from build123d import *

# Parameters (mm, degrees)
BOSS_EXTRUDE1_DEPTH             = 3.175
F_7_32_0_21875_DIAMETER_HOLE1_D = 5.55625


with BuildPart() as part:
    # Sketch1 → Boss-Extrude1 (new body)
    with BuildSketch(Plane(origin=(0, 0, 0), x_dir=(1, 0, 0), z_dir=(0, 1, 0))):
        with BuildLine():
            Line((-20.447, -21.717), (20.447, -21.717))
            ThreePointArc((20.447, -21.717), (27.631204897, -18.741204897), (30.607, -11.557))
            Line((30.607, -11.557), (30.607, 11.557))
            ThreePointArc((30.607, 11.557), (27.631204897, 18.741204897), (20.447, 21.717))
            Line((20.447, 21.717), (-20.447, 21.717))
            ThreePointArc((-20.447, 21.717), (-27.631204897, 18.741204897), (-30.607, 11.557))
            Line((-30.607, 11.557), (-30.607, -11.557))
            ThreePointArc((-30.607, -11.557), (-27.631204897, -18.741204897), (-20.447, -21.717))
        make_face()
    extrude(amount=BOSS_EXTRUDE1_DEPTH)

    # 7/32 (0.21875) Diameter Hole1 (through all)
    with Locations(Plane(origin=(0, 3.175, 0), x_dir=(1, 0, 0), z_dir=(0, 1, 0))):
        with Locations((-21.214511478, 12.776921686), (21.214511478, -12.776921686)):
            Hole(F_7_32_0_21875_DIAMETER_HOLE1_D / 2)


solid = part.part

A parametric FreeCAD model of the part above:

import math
import FreeCAD as App
import Part
import Sketcher
from FreeCAD import Vector
Q = App.Units.Quantity

doc = App.newDocument("Part")
params = doc.addObject("Spreadsheet::Sheet", "Params")
for row, (alias, value) in enumerate([
    ("sketch1_radius", "0.4 in"),
    ("sketch1_width", "1.61 in"),
    ("sketch1_height", "0.91 in"),
    ("pad1_length", "0.125 in"),
    ("sketch2_diameter", "0.21875 in"),
    ("hole_diameter", "0.21875 in"),
], start=1):
    params.set(f"A{row}", alias)
    params.set(f"B{row}", "=" + value)
    params.setAlias(f"B{row}", alias)

body = doc.addObject("PartDesign::Body", "Body")

# Sketch on XZ plane
sketch1 = body.newObject("Sketcher::SketchObject", "Sketch")
sketch1.AttachmentSupport = (doc.getObject("XZ_Plane"), [""])
sketch1.MapMode = "FlatFace"
sketch1.addGeometry([
    Part.LineSegment(Vector(-20, 22, 0), Vector(20, 22, 0)),  # 0
    Part.ArcOfCircle(Part.Circle(Vector(20, 12, 0), Vector(0, 0, 1), 10), math.radians(0), math.radians(90)),  # 1
    Part.LineSegment(Vector(31, 12, 0), Vector(31, -12, 0)),  # 2
    Part.ArcOfCircle(Part.Circle(Vector(20, -12, 0), Vector(0, 0, 1), 10), math.radians(-90), math.radians(0)),  # 3
    Part.LineSegment(Vector(20, -22, 0), Vector(-20, -22, 0)),  # 4
    Part.ArcOfCircle(Part.Circle(Vector(-20, -12, 0), Vector(0, 0, 1), 10), math.radians(180), math.radians(270)),  # 5
    Part.LineSegment(Vector(-31, -12, 0), Vector(-31, 12, 0)),  # 6
    Part.ArcOfCircle(Part.Circle(Vector(-20, 12, 0), Vector(0, 0, 1), 10), math.radians(90), math.radians(180)),  # 7
], False)
sketch1.addConstraint([
    Sketcher.Constraint("Tangent", 0, 2, 1, 2),
    Sketcher.Constraint("Tangent", 1, 1, 2, 1),
    Sketcher.Constraint("Tangent", 2, 2, 3, 2),
    Sketcher.Constraint("Tangent", 3, 1, 4, 1),
    Sketcher.Constraint("Tangent", 4, 2, 5, 2),
    Sketcher.Constraint("Tangent", 5, 1, 6, 1),
    Sketcher.Constraint("Tangent", 6, 2, 7, 2),
    Sketcher.Constraint("Tangent", 7, 1, 0, 1),
    Sketcher.Constraint("Horizontal", 0),
    Sketcher.Constraint("Vertical", 2),
    Sketcher.Constraint("Horizontal", 4),
    Sketcher.Constraint("Vertical", 6),
    Sketcher.Constraint("Equal", 1, 3),
    Sketcher.Constraint("Equal", 3, 5),
    Sketcher.Constraint("Equal", 5, 7),
    Sketcher.Constraint("Symmetric", 1, 3, 5, 3, -1, 1),
    Sketcher.Constraint("Radius", 1, Q("0.4 in")),
    Sketcher.Constraint("DistanceX", 0, 1, 0, 2, Q("1.61 in")),
    Sketcher.Constraint("DistanceY", 2, 2, 2, 1, Q("0.91 in")),
])
sketch1.setExpression("Constraints[16]", "Params.sketch1_radius")
sketch1.setExpression("Constraints[17]", "Params.sketch1_width")
sketch1.setExpression("Constraints[18]", "Params.sketch1_height")
pad1 = body.newObject("PartDesign::Pad", "Pad")
pad1.Profile = sketch1
pad1.setExpression("Length", "Params.pad1_length")
pad1.Reversed = True

# Sketch on XZ plane
sketch2 = body.newObject("Sketcher::SketchObject", "Sketch001")
sketch2.AttachmentSupport = (doc.getObject("XZ_Plane"), [""])
sketch2.MapMode = "FlatFace"
sketch2.AttachmentOffset = App.Placement(Vector(0, 0, -0.125 * 25.4), App.Rotation())
sketch2.addGeometry([
    Part.Circle(Vector(-21.2, -12.8, 0), Vector(0, 0, 1), 2.8),
    Part.Circle(Vector(21.2, 12.8, 0), Vector(0, 0, 1), 2.8),
], False)
sketch2.addConstraint([
    Sketcher.Constraint("Equal", 0, 1),
    Sketcher.Constraint("Symmetric", 0, 3, 1, 3, -1, 1),
    Sketcher.Constraint("Diameter", 0, Q("0.21875 in")),
    Sketcher.Constraint("DistanceX", 0, 3, -1, 1, 21.214511),
    Sketcher.Constraint("DistanceY", 0, 3, -1, 1, 12.776922),
])
sketch2.setExpression("Constraints[2]", "Params.sketch2_diameter")
doc.recompute()
hole = body.newObject("PartDesign::Hole", "Hole")
hole.Profile = sketch2
hole.ThreadType = "None"
hole.setExpression("Diameter", "Params.hole_diameter")
hole.DepthType = "ThroughAll"
hole.Reversed = True

doc.recompute()
